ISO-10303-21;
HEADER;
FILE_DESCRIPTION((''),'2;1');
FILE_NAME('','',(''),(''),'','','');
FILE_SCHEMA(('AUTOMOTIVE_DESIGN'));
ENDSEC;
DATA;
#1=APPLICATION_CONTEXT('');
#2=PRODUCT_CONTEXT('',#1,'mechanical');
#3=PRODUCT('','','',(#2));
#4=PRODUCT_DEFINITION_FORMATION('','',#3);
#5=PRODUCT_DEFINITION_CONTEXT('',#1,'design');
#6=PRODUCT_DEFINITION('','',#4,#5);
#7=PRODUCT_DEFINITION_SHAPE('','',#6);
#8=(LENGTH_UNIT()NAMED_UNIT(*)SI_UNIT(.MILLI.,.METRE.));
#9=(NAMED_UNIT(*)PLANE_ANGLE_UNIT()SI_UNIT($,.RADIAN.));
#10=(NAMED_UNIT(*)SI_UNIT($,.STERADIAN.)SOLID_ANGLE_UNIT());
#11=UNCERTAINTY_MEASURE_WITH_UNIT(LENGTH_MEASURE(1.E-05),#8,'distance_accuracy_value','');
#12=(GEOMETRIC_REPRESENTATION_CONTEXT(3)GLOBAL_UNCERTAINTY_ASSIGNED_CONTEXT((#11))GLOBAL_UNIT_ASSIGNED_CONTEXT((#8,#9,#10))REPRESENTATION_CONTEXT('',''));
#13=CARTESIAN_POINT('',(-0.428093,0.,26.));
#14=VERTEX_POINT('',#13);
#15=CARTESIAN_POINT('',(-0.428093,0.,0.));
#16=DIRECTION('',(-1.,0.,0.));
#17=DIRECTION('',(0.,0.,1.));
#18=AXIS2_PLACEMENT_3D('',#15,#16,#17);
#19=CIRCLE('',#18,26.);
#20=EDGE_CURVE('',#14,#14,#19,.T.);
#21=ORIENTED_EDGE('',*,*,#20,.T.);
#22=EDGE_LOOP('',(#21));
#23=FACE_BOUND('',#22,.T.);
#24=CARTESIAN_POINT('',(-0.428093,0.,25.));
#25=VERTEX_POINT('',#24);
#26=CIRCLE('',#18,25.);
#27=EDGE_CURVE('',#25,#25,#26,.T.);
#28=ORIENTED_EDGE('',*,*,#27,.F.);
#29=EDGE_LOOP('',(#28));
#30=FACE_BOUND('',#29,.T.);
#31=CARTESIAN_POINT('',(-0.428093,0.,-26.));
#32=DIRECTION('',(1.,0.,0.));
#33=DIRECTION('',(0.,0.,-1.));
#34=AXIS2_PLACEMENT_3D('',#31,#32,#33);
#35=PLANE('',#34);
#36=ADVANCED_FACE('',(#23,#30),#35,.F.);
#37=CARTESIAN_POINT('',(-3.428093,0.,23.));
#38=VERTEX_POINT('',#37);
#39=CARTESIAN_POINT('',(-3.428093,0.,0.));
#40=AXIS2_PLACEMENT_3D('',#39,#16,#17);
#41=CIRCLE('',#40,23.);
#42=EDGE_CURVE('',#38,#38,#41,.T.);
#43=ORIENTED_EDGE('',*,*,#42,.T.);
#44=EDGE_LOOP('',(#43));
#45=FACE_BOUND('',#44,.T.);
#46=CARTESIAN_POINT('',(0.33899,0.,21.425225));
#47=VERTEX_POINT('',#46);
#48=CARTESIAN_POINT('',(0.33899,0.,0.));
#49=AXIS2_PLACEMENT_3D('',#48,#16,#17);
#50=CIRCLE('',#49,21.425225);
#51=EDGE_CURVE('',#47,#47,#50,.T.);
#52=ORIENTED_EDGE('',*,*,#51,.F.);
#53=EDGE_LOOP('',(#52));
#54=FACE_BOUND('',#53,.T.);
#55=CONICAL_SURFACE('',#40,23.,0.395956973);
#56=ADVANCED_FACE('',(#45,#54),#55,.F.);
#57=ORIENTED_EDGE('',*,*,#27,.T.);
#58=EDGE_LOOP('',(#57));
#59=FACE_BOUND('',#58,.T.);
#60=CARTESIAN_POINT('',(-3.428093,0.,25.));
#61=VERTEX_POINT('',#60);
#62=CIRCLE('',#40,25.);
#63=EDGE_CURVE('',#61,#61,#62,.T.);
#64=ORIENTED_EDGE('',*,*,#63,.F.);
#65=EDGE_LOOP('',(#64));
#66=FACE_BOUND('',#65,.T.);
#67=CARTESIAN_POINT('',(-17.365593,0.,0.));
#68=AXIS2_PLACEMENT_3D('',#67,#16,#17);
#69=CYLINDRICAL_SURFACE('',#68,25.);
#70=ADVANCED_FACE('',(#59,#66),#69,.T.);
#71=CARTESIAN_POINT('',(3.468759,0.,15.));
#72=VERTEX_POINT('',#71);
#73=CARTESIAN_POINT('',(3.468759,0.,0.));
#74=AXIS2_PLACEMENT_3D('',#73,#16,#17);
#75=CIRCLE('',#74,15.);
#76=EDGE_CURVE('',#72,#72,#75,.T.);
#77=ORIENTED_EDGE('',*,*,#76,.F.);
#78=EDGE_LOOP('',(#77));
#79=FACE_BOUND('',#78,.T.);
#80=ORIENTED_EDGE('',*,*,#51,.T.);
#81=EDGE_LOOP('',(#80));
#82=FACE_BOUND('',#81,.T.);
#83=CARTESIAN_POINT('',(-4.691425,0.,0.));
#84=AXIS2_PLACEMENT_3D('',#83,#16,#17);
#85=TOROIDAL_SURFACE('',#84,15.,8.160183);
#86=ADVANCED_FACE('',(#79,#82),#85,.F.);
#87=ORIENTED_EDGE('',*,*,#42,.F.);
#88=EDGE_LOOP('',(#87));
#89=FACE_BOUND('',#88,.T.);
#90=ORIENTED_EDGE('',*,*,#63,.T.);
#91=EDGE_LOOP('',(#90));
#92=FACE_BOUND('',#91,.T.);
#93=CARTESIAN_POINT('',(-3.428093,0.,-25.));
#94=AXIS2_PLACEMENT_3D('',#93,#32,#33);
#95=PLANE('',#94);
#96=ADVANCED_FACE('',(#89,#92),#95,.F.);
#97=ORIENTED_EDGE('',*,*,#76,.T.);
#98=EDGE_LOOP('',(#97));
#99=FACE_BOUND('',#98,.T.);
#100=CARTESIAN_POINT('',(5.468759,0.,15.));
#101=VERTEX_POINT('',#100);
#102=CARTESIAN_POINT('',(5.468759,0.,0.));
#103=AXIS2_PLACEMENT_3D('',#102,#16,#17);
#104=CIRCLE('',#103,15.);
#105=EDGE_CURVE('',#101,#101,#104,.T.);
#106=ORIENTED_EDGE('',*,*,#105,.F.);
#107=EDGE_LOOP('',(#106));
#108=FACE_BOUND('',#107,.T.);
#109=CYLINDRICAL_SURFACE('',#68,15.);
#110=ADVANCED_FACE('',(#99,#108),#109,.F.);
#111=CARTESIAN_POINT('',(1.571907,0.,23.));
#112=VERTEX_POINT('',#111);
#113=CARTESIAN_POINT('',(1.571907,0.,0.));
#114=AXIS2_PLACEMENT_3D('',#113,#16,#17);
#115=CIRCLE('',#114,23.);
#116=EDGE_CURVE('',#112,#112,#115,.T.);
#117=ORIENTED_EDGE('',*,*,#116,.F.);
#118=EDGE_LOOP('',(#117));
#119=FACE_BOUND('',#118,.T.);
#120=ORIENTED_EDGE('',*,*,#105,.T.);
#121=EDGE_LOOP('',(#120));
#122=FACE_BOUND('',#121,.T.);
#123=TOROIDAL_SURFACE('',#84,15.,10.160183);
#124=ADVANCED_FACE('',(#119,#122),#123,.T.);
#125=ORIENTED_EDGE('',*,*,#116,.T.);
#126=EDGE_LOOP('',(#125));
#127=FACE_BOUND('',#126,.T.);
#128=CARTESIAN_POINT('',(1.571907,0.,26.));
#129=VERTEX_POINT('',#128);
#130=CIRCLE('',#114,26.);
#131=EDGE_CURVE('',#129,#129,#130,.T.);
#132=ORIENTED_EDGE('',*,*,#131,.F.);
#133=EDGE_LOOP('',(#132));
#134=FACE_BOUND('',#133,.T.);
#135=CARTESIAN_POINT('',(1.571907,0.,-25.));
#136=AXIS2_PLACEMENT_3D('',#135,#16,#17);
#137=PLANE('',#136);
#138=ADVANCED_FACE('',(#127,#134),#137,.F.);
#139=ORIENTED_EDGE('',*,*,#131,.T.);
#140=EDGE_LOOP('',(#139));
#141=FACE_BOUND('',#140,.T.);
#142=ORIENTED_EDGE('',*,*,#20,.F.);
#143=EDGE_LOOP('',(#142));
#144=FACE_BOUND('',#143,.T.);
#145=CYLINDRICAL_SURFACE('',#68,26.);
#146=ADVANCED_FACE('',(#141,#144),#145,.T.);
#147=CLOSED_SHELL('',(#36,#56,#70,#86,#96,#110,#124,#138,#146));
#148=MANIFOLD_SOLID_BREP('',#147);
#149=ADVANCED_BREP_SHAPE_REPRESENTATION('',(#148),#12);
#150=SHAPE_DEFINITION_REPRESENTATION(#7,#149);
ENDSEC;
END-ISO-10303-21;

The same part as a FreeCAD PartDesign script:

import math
import FreeCAD as App
import Part
import Sketcher
from FreeCAD import Vector

doc = App.newDocument("Part")
body = doc.addObject("PartDesign::Body", "Body")

# Sketch on XZ plane
sketch1 = body.newObject("Sketcher::SketchObject", "Sketch")
sketch1.AttachmentSupport = (doc.getObject("XZ_Plane"), [""])
sketch1.MapMode = "FlatFace"
sketch1.addGeometry([
    Part.LineSegment(Vector(1.571907, -26, 0), Vector(-0.428093, -26, 0)),  # 0
    Part.LineSegment(Vector(-0.428093, -26, 0), Vector(-0.428093, -25, 0)),  # 1
    Part.LineSegment(Vector(-0.428093, -25, 0), Vector(-3.428093, -25, 0)),  # 2
    Part.LineSegment(Vector(-3.428093, -25, 0), Vector(-3.428093, -23, 0)),  # 3
    Part.LineSegment(Vector(-3.428093, -23, 0), Vector(0.33899, -21.425225, 0)),  # 4
    Part.ArcOfCircle(Part.Circle(Vector(-4.691425, -15, 0), Vector(0, 0, 1), 8.160183), math.radians(-51.942023), math.radians(0)),  # 5
    Part.LineSegment(Vector(3.468759, -15, 0), Vector(5.468759, -15, 0)),  # 6
    Part.ArcOfCircle(Part.Circle(Vector(-4.691425, -15, 0), Vector(0, 0, 1), 10.160183), math.radians(-51.942023), math.radians(0)),  # 7
    Part.LineSegment(Vector(1.571907, -23, 0), Vector(1.571907, -26, 0)),  # 8
], False)
sketch1.addConstraint([
    Sketcher.Constraint("Coincident", 0, 2, 1, 1),
    Sketcher.Constraint("Coincident", 1, 2, 2, 1),
    Sketcher.Constraint("Coincident", 2, 2, 3, 1),
    Sketcher.Constraint("Coincident", 3, 2, 4, 1),
    Sketcher.Constraint("Coincident", 4, 2, 5, 1),
    Sketcher.Constraint("Coincident", 5, 2, 6, 1),
    Sketcher.Constraint("Coincident", 6, 2, 7, 2),
    Sketcher.Constraint("Coincident", 7, 1, 8, 1),
    Sketcher.Constraint("Coincident", 8, 2, 0, 1),
    Sketcher.Constraint("Horizontal", 0),
    Sketcher.Constraint("Vertical", 1),
    Sketcher.Constraint("Horizontal", 2),
    Sketcher.Constraint("Vertical", 3),
    Sketcher.Constraint("Horizontal", 6),
    Sketcher.Constraint("Vertical", 8),
    Sketcher.Constraint("Coincident", 7, 3, 5, 3),
    Sketcher.Constraint("Horizontal", 7, 3, 5, 2),
    Sketcher.Constraint("Horizontal", 3, 2, 7, 1),
    Sketcher.Constraint("Equal", 0, 6),
    Sketcher.Constraint("Equal", 6, 3),
    Sketcher.Constraint("Equal", 2, 8),
    Sketcher.Constraint("DistanceX", 0, 2, 0, 1, 2.0),
    Sketcher.Constraint("DistanceX", 2, 2, 2, 1, 3.0),
    Sketcher.Constraint("DistanceY", 5, 3, -1, 1, 15.0),
    Sketcher.Constraint("DistanceY", 0, 2, -1, 1, 26.0),
    Sketcher.Constraint("Radius", 5, 8.160183),
    Sketcher.Constraint("DistanceX", -1, 1, 4, 2, 0.33899),
    Sketcher.Constraint("DistanceX", -1, 1, 5, 2, 3.468759),
])
revolution = body.newObject("PartDesign::Revolution", "Revolution")
revolution.Profile = sketch1
revolution.ReferenceAxis = (sketch1, ["H_Axis"])
revolution.Angle = 360

doc.recompute()
